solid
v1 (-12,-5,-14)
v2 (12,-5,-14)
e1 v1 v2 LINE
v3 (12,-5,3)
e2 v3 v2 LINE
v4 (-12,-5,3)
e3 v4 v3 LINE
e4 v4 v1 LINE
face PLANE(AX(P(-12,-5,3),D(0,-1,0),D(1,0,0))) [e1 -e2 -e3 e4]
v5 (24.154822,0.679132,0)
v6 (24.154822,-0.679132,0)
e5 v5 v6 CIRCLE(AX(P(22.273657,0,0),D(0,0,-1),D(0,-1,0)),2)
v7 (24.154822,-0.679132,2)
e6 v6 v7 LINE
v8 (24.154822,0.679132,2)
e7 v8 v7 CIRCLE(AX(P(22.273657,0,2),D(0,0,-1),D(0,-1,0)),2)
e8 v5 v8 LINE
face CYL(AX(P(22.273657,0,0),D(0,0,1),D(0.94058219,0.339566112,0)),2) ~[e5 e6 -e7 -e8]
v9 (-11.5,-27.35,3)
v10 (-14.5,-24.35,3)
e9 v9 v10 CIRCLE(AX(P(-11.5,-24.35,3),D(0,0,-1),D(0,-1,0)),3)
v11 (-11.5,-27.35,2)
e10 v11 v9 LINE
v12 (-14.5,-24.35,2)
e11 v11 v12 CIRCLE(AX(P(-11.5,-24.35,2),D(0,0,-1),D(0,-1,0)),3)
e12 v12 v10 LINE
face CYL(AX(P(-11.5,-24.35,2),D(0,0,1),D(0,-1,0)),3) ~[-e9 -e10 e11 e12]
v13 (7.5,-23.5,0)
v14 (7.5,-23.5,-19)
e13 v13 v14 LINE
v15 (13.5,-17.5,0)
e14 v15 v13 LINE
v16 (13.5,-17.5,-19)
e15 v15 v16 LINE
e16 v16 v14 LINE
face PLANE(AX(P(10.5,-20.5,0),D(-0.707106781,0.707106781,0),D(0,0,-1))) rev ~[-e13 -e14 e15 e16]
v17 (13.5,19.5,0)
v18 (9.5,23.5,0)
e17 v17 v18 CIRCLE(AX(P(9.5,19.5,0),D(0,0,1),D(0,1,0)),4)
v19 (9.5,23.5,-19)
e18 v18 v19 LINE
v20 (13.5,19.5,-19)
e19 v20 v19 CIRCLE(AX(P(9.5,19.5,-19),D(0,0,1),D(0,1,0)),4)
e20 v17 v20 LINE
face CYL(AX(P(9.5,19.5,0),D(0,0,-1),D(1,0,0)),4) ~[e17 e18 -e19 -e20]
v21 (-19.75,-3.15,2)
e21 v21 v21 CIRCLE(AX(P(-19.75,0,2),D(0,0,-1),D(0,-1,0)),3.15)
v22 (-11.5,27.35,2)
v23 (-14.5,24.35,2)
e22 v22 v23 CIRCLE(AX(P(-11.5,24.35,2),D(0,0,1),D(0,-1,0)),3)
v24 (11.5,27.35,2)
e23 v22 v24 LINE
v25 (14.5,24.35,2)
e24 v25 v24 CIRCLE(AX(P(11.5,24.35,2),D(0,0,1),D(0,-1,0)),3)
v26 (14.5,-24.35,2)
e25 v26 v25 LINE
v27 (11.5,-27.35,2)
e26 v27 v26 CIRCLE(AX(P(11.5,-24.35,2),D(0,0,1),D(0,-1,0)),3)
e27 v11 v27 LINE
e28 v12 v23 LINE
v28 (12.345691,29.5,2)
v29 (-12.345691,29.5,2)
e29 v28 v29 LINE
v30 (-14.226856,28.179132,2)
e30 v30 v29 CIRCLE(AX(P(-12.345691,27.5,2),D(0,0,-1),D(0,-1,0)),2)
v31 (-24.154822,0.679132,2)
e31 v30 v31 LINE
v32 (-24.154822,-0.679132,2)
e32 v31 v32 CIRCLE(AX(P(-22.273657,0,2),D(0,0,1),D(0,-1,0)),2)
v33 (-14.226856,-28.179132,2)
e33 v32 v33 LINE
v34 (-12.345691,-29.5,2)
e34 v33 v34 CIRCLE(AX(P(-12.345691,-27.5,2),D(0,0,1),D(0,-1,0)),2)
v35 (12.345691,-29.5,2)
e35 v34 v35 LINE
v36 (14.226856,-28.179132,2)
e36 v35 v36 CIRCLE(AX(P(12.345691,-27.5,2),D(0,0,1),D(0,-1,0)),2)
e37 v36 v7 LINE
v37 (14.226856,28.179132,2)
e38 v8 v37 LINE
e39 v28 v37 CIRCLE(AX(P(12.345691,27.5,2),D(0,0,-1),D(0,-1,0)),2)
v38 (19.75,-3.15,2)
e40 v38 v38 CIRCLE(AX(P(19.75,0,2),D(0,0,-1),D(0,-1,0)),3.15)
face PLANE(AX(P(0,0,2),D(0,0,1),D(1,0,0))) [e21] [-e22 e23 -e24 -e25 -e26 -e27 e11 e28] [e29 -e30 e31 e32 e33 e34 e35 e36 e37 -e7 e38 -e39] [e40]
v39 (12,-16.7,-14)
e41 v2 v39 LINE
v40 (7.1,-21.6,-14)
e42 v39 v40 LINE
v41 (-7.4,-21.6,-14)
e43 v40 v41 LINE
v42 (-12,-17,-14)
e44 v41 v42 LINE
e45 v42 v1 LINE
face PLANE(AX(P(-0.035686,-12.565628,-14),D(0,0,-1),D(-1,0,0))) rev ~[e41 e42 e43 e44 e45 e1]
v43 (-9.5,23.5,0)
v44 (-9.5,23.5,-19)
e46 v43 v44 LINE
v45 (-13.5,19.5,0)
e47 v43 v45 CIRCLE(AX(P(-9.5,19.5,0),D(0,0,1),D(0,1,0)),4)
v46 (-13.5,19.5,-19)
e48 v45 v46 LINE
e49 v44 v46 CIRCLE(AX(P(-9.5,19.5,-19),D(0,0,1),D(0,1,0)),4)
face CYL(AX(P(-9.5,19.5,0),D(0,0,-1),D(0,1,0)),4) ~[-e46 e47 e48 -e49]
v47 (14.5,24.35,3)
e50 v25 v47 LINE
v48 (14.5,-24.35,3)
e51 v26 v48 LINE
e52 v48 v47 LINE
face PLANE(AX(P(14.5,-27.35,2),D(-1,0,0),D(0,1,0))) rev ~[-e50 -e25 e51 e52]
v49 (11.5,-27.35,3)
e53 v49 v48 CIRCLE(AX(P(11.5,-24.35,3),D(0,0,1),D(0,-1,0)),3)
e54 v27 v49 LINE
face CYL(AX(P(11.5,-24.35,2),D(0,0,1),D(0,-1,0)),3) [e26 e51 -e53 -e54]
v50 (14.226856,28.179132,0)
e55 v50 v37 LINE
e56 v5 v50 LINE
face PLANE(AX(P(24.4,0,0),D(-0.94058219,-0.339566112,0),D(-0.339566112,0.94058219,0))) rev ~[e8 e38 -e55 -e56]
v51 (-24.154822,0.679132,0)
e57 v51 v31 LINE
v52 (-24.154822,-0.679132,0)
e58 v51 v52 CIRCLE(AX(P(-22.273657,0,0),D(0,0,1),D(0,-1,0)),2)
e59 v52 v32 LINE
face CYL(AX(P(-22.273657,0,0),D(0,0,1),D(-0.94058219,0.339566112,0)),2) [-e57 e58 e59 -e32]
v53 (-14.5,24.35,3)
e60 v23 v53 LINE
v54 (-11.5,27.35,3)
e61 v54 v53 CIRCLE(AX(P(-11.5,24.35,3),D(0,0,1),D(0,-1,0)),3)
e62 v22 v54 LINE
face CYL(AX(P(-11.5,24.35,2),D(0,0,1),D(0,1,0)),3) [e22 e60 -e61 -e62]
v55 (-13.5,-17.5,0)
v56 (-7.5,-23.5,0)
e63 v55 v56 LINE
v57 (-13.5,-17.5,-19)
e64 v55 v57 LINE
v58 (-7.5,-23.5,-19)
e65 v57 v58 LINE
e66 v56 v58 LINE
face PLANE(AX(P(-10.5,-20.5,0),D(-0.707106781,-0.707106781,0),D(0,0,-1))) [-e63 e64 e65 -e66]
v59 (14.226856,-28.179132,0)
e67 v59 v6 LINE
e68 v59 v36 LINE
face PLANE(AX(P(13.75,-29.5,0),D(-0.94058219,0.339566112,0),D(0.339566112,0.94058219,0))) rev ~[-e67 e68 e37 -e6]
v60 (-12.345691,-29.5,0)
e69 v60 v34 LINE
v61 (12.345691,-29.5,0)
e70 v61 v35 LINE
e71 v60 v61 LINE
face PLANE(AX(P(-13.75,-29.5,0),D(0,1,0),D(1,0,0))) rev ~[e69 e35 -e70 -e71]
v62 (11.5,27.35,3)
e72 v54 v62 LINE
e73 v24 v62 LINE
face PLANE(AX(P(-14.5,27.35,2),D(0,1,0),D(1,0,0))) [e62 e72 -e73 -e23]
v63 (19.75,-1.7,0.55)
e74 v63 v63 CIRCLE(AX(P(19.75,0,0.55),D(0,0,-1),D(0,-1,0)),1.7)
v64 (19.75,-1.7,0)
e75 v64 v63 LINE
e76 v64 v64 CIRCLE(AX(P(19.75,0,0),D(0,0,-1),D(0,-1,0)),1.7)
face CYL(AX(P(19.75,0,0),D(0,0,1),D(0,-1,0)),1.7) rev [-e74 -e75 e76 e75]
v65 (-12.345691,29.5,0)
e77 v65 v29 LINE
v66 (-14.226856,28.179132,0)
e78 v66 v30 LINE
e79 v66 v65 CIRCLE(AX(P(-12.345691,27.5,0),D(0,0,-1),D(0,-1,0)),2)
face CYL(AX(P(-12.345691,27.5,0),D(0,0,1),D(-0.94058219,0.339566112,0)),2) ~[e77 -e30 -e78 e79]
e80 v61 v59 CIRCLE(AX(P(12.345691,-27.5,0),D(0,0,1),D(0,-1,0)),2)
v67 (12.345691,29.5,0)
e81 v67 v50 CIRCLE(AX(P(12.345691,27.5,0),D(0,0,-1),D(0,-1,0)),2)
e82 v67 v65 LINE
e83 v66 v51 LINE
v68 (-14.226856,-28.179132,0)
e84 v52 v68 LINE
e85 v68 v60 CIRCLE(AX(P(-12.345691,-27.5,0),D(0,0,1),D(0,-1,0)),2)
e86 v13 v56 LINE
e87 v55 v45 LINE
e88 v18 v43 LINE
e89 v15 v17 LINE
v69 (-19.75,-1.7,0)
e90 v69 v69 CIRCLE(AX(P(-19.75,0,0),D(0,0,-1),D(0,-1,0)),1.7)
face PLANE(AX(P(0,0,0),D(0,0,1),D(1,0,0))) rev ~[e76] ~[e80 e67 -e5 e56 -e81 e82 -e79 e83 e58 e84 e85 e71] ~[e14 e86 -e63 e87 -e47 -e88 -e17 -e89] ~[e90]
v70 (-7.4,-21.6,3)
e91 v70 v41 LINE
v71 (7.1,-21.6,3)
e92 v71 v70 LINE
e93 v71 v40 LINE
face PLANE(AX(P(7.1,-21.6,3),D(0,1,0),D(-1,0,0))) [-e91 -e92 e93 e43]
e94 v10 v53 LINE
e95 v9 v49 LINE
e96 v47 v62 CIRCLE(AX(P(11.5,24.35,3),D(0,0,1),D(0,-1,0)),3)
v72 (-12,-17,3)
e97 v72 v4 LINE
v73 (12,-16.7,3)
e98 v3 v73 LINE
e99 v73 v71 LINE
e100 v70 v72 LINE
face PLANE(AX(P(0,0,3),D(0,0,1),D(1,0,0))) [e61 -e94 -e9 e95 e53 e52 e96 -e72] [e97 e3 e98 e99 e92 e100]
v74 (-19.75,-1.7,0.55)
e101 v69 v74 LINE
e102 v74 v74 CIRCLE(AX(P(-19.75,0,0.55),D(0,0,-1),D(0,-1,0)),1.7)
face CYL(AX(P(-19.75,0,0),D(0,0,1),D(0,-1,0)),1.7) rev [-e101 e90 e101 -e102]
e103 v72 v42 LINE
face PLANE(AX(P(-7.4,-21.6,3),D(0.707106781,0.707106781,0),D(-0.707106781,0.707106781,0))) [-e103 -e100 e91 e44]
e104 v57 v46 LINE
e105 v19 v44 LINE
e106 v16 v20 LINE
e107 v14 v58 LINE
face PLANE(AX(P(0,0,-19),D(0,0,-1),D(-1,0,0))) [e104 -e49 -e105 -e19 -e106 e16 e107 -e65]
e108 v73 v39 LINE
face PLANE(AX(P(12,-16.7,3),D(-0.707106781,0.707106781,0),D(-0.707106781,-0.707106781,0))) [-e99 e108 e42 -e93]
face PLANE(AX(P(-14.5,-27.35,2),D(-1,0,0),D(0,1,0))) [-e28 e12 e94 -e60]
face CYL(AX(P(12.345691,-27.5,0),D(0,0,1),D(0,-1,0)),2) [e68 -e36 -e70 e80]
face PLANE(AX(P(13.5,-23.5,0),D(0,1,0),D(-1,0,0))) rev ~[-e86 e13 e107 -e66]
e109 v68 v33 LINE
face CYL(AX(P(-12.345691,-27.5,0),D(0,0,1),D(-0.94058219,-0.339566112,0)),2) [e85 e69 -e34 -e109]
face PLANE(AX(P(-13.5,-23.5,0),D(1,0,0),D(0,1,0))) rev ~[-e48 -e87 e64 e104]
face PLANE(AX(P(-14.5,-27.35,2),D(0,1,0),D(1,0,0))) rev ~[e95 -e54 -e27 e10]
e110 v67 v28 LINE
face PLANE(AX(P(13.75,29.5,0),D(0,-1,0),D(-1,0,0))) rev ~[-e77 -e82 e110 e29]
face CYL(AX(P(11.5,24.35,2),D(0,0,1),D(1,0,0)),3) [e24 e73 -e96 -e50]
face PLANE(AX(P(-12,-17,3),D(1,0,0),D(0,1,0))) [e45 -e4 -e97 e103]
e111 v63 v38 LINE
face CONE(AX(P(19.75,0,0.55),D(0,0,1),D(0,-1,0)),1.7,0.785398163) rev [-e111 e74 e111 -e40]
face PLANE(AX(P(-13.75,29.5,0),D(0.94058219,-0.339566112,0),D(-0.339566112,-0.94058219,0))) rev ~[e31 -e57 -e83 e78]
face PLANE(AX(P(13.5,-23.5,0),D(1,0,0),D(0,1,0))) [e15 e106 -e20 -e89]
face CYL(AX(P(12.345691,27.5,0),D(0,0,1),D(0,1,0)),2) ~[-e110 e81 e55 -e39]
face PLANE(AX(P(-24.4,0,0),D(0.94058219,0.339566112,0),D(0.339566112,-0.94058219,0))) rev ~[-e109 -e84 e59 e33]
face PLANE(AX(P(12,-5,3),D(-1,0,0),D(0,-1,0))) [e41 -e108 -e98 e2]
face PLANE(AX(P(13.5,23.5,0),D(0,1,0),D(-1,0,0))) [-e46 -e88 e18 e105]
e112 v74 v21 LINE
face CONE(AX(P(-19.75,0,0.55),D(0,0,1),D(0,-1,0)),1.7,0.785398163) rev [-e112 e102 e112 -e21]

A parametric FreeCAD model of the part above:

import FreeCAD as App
import Part
import Sketcher

V = App.Vector
Q = App.Units.Quantity


def edges_at(feature, points):
    """Names of the edges that pass closest to the given points."""
    edges = feature.Shape.Edges
    near = lambda p: min(range(len(edges)), key=lambda i: edges[i].distToShape(Part.Vertex(*p))[0])
    return sorted({f"Edge{near(p) + 1}" for p in points})

doc = App.newDocument("Part")
body = doc.addObject("PartDesign::Body", "Body")

# Sketch on XY plane
sketch1 = doc.addObject("Sketcher::SketchObject", "Sketch")
body.addObject(sketch1)
sketch1.AttachmentSupport = (doc.XY_Plane, [""])
sketch1.MapMode = "FlatFace"
sketch1.addGeometry([
    Part.LineSegment(V(-13.75, 29.5, 0), V(-24.4, 0, 0)),  # 0
    Part.LineSegment(V(-24.4, 0, 0), V(-13.75, -29.5, 0)),  # 1
    Part.LineSegment(V(-13.75, -29.5, 0), V(13.75, -29.5, 0)),  # 2
    Part.LineSegment(V(13.75, -29.5, 0), V(24.4, 0, 0)),  # 3
    Part.LineSegment(V(24.4, 0, 0), V(13.75, 29.5, 0)),  # 4
    Part.LineSegment(V(13.75, 29.5, 0), V(-13.75, 29.5, 0)),  # 5
], False)
sketch1.addConstraint([
    Sketcher.Constraint("Coincident", 0, 2, 1, 1),
    Sketcher.Constraint("Coincident", 1, 2, 2, 1),
    Sketcher.Constraint("Coincident", 2, 2, 3, 1),
    Sketcher.Constraint("Coincident", 3, 2, 4, 1),
    Sketcher.Constraint("Coincident", 4, 2, 5, 1),
    Sketcher.Constraint("Coincident", 5, 2, 0, 1),
    Sketcher.Constraint("Horizontal", 2),
    Sketcher.Constraint("Horizontal", 5),
    Sketcher.Constraint("Symmetric", 0, 2, 3, 2, -1, 1),
    Sketcher.Constraint("Symmetric", 1, 2, 4, 2, -1, 1),
    Sketcher.Constraint("PointOnObject", 0, 2, -1),
    Sketcher.Constraint("Parallel", 0, 3),
    Sketcher.Constraint("Vertical", 2, 2, 4, 2),
    Sketcher.Constraint("DistanceX", 2, 1, 2, 2, Q("27.5 mm")),
    Sketcher.Constraint("DistanceY", 2, 2, 4, 2, Q("59 mm")),
    Sketcher.Constraint("DistanceX", 0, 2, -1, 1, Q("24.4 mm")),
])
pad1 = doc.addObject("PartDesign::Pad", "Pad")
body.addObject(pad1)
pad1.Profile = sketch1
pad1.Length = 2

# Sketch on XY plane
sketch2 = doc.addObject("Sketcher::SketchObject", "Sketch001")
body.addObject(sketch2)
sketch2.AttachmentSupport = (doc.XY_Plane, [""])
sketch2.MapMode = "FlatFace"
sketch2.AttachmentOffset = App.Placement(V(0, 0, 2), App.Rotation())
sketch2.addGeometry([
    Part.LineSegment(V(-14.5, 27.35, 0), V(-14.5, -27.35, 0)),
    Part.LineSegment(V(-14.5, -27.35, 0), V(14.5, -27.35, 0)),
    Part.LineSegment(V(14.5, -27.35, 0), V(14.5, 27.35, 0)),
    Part.LineSegment(V(14.5, 27.35, 0), V(-14.5, 27.35, 0)),
], False)
sketch2.addConstraint([
    Sketcher.Constraint("Coincident", 0, 2, 1, 1),
    Sketcher.Constraint("Coincident", 1, 2, 2, 1),
    Sketcher.Constraint("Coincident", 2, 2, 3, 1),
    Sketcher.Constraint("Coincident", 3, 2, 0, 1),
    Sketcher.Constraint("Vertical", 0),
    Sketcher.Constraint("Horizontal", 1),
    Sketcher.Constraint("Vertical", 2),
    Sketcher.Constraint("Horizontal", 3),
    Sketcher.Constraint("Symmetric", 0, 2, 2, 2, -1, 1),
    Sketcher.Constraint("DistanceX", 1, 1, 1, 2, Q("29 mm")),
    Sketcher.Constraint("DistanceY", 0, 2, 0, 1, Q("54.7 mm")),
])
pad2 = doc.addObject("PartDesign::Pad", "Pad001")
body.addObject(pad2)
pad2.Profile = sketch2
pad2.Length = 1
doc.recompute()

fillet = doc.addObject("PartDesign::Fillet", "Fillet")
body.addObject(fillet)
fillet.Base = (pad2, edges_at(pad2, [
    (14.5, -27.35, 2.5),
    (14.5, 27.35, 2.5),
    (-14.5, 27.35, 2.5),
    (-14.5, -27.35, 2.5),
]))
fillet.Radius = 3
doc.recompute()

fillet2 = doc.addObject("PartDesign::Fillet", "Fillet001")
body.addObject(fillet2)
fillet2.Base = (fillet, edges_at(fillet, [
    (24.4, 0, 1),
    (13.75, -29.5, 1),
    (-13.75, -29.5, 1),
    (-24.4, 0, 1),
    (-13.75, 29.5, 1),
    (13.75, 29.5, 1),
]))
fillet2.Radius = 2

# Sketch on YZ plane
sketch3 = doc.addObject("Sketcher::SketchObject", "Sketch002")
body.addObject(sketch3)
sketch3.AttachmentSupport = (doc.YZ_Plane, [""])
sketch3.MapMode = "FlatFace"
sketch3.AttachmentOffset = App.Placement(V(0, 0, -19.75), App.Rotation())
sketch3.addGeometry([
    Part.LineSegment(V(0, 0, 0), V(0, 2, 0)),  # 0
    Part.LineSegment(V(0, 2, 0), V(-3.15, 2, 0)),  # 1
    Part.LineSegment(V(-3.15, 2, 0), V(-1.7, 0.55, 0)),  # 2
    Part.LineSegment(V(-1.7, 0.55, 0), V(-1.7, 0, 0)),  # 3
    Part.LineSegment(V(-1.7, 0, 0), V(0, 0, 0)),  # 4
], False)
sketch3.addConstraint([
    Sketcher.Constraint("Coincident", 0, 2, 1, 1),
    Sketcher.Constraint("Coincident", 1, 2, 2, 1),
    Sketcher.Constraint("Coincident", 2, 2, 3, 1),
    Sketcher.Constraint("Coincident", 3, 2, 4, 1),
    Sketcher.Constraint("Coincident", 4, 2, 0, 1),
    Sketcher.Constraint("Vertical", 0),
    Sketcher.Constraint("Horizontal", 1),
    Sketcher.Constraint("Vertical", 3),
    Sketcher.Constraint("Horizontal", 4),
    Sketcher.Constraint("Coincident", 4, 2, -1, 1),
    Sketcher.Constraint("DistanceY", 0, 1, 0, 2, Q("2 mm")),
    Sketcher.Constraint("Angle", 2, Q("-45 deg")),
    Sketcher.Constraint("DistanceX", 4, 1, 4, 2, Q("1.7 mm")),
    Sketcher.Constraint("DistanceX", 1, 2, 1, 1, Q("3.15 mm")),
])
groove = doc.addObject("PartDesign::Groove", "Groove")
body.addObject(groove)
groove.Profile = sketch3
groove.ReferenceAxis = (sketch3, ["V_Axis"])
groove.Angle = 360
doc.recompute()

linearpattern = doc.addObject("PartDesign::LinearPattern", "LinearPattern")
body.addObject(linearpattern)
linearpattern.Originals = [groove]
linearpattern.Direction = (doc.X_Axis, [""])
linearpattern.Mode = "offset"
linearpattern.Offset = 39.5
linearpattern.Occurrences = 2
body.Tip = linearpattern

# Sketch on XY plane
sketch4 = doc.addObject("Sketcher::SketchObject", "Sketch003")
body.addObject(sketch4)
sketch4.AttachmentSupport = (doc.XY_Plane, [""])
sketch4.MapMode = "FlatFace"
sketch4.addGeometry([
    Part.LineSegment(V(13.5, 23.5, 0), V(13.5, -23.5, 0)),
    Part.LineSegment(V(13.5, -23.5, 0), V(-13.5, -23.5, 0)),
    Part.LineSegment(V(-13.5, -23.5, 0), V(-13.5, 23.5, 0)),
    Part.LineSegment(V(-13.5, 23.5, 0), V(13.5, 23.5, 0)),
], False)
sketch4.addConstraint([
    Sketcher.Constraint("Coincident", 0, 2, 1, 1),
    Sketcher.Constraint("Coincident", 1, 2, 2, 1),
    Sketcher.Constraint("Coincident", 2, 2, 3, 1),
    Sketcher.Constraint("Coincident", 3, 2, 0, 1),
    Sketcher.Constraint("Vertical", 0),
    Sketcher.Constraint("Horizontal", 1),
    Sketcher.Constraint("Vertical", 2),
    Sketcher.Constraint("Horizontal", 3),
    Sketcher.Constraint("Symmetric", 0, 2, 2, 2, -1, 1),
    Sketcher.Constraint("DistanceX", 1, 2, 1, 1, Q("27 mm")),
    Sketcher.Constraint("DistanceY", 0, 2, 0, 1, Q("47 mm")),
])
pad3 = doc.addObject("PartDesign::Pad", "Pad002")
body.addObject(pad3)
pad3.Profile = sketch4
pad3.Length = 19
pad3.Reversed = True
doc.recompute()

chamfer = doc.addObject("PartDesign::Chamfer", "Chamfer")
body.addObject(chamfer)
chamfer.Base = (pad3, edges_at(pad3, [(-13.5, -23.5, -9.5), (13.5, -23.5, -9.5)]))
chamfer.Size = 6
doc.recompute()

fillet3 = doc.addObject("PartDesign::Fillet", "Fillet002")
body.addObject(fillet3)
fillet3.Base = (chamfer, edges_at(chamfer, [(-13.5, 23.5, -9.5), (13.5, 23.5, -9.5)]))
fillet3.Radius = 4

# Sketch on XY plane
sketch5 = doc.addObject("Sketcher::SketchObject", "Sketch004")
body.addObject(sketch5)
sketch5.AttachmentSupport = (doc.XY_Plane, [""])
sketch5.MapMode = "FlatFace"
sketch5.AttachmentOffset = App.Placement(V(0, 0, 3), App.Rotation())
sketch5.addGeometry([
    Part.LineSegment(V(12, -5, 0), V(-12, -5, 0)),  # 0
    Part.LineSegment(V(-12, -5, 0), V(-12, -17, 0)),  # 1
    Part.LineSegment(V(-12, -17, 0), V(-7.4, -21.6, 0)),  # 2
    Part.LineSegment(V(-7.4, -21.6, 0), V(7.1, -21.6, 0)),  # 3
    Part.LineSegment(V(7.1, -21.6, 0), V(12, -16.7, 0)),  # 4
    Part.LineSegment(V(12, -16.7, 0), V(12, -5, 0)),  # 5
], False)
sketch5.addConstraint([
    Sketcher.Constraint("Coincident", 0, 2, 1, 1),
    Sketcher.Constraint("Coincident", 1, 2, 2, 1),
    Sketcher.Constraint("Coincident", 2, 2, 3, 1),
    Sketcher.Constraint("Coincident", 3, 2, 4, 1),
    Sketcher.Constraint("Coincident", 4, 2, 5, 1),
    Sketcher.Constraint("Coincident", 5, 2, 0, 1),
    Sketcher.Constraint("Horizontal", 0),
    Sketcher.Constraint("Vertical", 1),
    Sketcher.Constraint("Horizontal", 3),
    Sketcher.Constraint("Vertical", 5),
    Sketcher.Constraint("Perpendicular", 2, 4),
    Sketcher.Constraint("DistanceX", 0, 2, 0, 1, Q("24 mm")),
    Sketcher.Constraint("DistanceY", 1, 2, 1, 1, Q("12 mm")),
    Sketcher.Constraint("Angle", 2, Q("-45 deg")),
    Sketcher.Constraint("DistanceX", 3, 1, 3, 2, Q("14.5 mm")),
    Sketcher.Constraint("DistanceY", 5, 1, 5, 2, Q("11.7 mm")),
    Sketcher.Constraint("DistanceX", 0, 2, -1, 1, Q("12 mm")),
    Sketcher.Constraint("DistanceY", 0, 2, -1, 1, Q("5 mm")),
])
pocket1 = doc.addObject("PartDesign::Pocket", "Pocket")
body.addObject(pocket1)
pocket1.Profile = sketch5
pocket1.Length = 17

doc.recompute()
